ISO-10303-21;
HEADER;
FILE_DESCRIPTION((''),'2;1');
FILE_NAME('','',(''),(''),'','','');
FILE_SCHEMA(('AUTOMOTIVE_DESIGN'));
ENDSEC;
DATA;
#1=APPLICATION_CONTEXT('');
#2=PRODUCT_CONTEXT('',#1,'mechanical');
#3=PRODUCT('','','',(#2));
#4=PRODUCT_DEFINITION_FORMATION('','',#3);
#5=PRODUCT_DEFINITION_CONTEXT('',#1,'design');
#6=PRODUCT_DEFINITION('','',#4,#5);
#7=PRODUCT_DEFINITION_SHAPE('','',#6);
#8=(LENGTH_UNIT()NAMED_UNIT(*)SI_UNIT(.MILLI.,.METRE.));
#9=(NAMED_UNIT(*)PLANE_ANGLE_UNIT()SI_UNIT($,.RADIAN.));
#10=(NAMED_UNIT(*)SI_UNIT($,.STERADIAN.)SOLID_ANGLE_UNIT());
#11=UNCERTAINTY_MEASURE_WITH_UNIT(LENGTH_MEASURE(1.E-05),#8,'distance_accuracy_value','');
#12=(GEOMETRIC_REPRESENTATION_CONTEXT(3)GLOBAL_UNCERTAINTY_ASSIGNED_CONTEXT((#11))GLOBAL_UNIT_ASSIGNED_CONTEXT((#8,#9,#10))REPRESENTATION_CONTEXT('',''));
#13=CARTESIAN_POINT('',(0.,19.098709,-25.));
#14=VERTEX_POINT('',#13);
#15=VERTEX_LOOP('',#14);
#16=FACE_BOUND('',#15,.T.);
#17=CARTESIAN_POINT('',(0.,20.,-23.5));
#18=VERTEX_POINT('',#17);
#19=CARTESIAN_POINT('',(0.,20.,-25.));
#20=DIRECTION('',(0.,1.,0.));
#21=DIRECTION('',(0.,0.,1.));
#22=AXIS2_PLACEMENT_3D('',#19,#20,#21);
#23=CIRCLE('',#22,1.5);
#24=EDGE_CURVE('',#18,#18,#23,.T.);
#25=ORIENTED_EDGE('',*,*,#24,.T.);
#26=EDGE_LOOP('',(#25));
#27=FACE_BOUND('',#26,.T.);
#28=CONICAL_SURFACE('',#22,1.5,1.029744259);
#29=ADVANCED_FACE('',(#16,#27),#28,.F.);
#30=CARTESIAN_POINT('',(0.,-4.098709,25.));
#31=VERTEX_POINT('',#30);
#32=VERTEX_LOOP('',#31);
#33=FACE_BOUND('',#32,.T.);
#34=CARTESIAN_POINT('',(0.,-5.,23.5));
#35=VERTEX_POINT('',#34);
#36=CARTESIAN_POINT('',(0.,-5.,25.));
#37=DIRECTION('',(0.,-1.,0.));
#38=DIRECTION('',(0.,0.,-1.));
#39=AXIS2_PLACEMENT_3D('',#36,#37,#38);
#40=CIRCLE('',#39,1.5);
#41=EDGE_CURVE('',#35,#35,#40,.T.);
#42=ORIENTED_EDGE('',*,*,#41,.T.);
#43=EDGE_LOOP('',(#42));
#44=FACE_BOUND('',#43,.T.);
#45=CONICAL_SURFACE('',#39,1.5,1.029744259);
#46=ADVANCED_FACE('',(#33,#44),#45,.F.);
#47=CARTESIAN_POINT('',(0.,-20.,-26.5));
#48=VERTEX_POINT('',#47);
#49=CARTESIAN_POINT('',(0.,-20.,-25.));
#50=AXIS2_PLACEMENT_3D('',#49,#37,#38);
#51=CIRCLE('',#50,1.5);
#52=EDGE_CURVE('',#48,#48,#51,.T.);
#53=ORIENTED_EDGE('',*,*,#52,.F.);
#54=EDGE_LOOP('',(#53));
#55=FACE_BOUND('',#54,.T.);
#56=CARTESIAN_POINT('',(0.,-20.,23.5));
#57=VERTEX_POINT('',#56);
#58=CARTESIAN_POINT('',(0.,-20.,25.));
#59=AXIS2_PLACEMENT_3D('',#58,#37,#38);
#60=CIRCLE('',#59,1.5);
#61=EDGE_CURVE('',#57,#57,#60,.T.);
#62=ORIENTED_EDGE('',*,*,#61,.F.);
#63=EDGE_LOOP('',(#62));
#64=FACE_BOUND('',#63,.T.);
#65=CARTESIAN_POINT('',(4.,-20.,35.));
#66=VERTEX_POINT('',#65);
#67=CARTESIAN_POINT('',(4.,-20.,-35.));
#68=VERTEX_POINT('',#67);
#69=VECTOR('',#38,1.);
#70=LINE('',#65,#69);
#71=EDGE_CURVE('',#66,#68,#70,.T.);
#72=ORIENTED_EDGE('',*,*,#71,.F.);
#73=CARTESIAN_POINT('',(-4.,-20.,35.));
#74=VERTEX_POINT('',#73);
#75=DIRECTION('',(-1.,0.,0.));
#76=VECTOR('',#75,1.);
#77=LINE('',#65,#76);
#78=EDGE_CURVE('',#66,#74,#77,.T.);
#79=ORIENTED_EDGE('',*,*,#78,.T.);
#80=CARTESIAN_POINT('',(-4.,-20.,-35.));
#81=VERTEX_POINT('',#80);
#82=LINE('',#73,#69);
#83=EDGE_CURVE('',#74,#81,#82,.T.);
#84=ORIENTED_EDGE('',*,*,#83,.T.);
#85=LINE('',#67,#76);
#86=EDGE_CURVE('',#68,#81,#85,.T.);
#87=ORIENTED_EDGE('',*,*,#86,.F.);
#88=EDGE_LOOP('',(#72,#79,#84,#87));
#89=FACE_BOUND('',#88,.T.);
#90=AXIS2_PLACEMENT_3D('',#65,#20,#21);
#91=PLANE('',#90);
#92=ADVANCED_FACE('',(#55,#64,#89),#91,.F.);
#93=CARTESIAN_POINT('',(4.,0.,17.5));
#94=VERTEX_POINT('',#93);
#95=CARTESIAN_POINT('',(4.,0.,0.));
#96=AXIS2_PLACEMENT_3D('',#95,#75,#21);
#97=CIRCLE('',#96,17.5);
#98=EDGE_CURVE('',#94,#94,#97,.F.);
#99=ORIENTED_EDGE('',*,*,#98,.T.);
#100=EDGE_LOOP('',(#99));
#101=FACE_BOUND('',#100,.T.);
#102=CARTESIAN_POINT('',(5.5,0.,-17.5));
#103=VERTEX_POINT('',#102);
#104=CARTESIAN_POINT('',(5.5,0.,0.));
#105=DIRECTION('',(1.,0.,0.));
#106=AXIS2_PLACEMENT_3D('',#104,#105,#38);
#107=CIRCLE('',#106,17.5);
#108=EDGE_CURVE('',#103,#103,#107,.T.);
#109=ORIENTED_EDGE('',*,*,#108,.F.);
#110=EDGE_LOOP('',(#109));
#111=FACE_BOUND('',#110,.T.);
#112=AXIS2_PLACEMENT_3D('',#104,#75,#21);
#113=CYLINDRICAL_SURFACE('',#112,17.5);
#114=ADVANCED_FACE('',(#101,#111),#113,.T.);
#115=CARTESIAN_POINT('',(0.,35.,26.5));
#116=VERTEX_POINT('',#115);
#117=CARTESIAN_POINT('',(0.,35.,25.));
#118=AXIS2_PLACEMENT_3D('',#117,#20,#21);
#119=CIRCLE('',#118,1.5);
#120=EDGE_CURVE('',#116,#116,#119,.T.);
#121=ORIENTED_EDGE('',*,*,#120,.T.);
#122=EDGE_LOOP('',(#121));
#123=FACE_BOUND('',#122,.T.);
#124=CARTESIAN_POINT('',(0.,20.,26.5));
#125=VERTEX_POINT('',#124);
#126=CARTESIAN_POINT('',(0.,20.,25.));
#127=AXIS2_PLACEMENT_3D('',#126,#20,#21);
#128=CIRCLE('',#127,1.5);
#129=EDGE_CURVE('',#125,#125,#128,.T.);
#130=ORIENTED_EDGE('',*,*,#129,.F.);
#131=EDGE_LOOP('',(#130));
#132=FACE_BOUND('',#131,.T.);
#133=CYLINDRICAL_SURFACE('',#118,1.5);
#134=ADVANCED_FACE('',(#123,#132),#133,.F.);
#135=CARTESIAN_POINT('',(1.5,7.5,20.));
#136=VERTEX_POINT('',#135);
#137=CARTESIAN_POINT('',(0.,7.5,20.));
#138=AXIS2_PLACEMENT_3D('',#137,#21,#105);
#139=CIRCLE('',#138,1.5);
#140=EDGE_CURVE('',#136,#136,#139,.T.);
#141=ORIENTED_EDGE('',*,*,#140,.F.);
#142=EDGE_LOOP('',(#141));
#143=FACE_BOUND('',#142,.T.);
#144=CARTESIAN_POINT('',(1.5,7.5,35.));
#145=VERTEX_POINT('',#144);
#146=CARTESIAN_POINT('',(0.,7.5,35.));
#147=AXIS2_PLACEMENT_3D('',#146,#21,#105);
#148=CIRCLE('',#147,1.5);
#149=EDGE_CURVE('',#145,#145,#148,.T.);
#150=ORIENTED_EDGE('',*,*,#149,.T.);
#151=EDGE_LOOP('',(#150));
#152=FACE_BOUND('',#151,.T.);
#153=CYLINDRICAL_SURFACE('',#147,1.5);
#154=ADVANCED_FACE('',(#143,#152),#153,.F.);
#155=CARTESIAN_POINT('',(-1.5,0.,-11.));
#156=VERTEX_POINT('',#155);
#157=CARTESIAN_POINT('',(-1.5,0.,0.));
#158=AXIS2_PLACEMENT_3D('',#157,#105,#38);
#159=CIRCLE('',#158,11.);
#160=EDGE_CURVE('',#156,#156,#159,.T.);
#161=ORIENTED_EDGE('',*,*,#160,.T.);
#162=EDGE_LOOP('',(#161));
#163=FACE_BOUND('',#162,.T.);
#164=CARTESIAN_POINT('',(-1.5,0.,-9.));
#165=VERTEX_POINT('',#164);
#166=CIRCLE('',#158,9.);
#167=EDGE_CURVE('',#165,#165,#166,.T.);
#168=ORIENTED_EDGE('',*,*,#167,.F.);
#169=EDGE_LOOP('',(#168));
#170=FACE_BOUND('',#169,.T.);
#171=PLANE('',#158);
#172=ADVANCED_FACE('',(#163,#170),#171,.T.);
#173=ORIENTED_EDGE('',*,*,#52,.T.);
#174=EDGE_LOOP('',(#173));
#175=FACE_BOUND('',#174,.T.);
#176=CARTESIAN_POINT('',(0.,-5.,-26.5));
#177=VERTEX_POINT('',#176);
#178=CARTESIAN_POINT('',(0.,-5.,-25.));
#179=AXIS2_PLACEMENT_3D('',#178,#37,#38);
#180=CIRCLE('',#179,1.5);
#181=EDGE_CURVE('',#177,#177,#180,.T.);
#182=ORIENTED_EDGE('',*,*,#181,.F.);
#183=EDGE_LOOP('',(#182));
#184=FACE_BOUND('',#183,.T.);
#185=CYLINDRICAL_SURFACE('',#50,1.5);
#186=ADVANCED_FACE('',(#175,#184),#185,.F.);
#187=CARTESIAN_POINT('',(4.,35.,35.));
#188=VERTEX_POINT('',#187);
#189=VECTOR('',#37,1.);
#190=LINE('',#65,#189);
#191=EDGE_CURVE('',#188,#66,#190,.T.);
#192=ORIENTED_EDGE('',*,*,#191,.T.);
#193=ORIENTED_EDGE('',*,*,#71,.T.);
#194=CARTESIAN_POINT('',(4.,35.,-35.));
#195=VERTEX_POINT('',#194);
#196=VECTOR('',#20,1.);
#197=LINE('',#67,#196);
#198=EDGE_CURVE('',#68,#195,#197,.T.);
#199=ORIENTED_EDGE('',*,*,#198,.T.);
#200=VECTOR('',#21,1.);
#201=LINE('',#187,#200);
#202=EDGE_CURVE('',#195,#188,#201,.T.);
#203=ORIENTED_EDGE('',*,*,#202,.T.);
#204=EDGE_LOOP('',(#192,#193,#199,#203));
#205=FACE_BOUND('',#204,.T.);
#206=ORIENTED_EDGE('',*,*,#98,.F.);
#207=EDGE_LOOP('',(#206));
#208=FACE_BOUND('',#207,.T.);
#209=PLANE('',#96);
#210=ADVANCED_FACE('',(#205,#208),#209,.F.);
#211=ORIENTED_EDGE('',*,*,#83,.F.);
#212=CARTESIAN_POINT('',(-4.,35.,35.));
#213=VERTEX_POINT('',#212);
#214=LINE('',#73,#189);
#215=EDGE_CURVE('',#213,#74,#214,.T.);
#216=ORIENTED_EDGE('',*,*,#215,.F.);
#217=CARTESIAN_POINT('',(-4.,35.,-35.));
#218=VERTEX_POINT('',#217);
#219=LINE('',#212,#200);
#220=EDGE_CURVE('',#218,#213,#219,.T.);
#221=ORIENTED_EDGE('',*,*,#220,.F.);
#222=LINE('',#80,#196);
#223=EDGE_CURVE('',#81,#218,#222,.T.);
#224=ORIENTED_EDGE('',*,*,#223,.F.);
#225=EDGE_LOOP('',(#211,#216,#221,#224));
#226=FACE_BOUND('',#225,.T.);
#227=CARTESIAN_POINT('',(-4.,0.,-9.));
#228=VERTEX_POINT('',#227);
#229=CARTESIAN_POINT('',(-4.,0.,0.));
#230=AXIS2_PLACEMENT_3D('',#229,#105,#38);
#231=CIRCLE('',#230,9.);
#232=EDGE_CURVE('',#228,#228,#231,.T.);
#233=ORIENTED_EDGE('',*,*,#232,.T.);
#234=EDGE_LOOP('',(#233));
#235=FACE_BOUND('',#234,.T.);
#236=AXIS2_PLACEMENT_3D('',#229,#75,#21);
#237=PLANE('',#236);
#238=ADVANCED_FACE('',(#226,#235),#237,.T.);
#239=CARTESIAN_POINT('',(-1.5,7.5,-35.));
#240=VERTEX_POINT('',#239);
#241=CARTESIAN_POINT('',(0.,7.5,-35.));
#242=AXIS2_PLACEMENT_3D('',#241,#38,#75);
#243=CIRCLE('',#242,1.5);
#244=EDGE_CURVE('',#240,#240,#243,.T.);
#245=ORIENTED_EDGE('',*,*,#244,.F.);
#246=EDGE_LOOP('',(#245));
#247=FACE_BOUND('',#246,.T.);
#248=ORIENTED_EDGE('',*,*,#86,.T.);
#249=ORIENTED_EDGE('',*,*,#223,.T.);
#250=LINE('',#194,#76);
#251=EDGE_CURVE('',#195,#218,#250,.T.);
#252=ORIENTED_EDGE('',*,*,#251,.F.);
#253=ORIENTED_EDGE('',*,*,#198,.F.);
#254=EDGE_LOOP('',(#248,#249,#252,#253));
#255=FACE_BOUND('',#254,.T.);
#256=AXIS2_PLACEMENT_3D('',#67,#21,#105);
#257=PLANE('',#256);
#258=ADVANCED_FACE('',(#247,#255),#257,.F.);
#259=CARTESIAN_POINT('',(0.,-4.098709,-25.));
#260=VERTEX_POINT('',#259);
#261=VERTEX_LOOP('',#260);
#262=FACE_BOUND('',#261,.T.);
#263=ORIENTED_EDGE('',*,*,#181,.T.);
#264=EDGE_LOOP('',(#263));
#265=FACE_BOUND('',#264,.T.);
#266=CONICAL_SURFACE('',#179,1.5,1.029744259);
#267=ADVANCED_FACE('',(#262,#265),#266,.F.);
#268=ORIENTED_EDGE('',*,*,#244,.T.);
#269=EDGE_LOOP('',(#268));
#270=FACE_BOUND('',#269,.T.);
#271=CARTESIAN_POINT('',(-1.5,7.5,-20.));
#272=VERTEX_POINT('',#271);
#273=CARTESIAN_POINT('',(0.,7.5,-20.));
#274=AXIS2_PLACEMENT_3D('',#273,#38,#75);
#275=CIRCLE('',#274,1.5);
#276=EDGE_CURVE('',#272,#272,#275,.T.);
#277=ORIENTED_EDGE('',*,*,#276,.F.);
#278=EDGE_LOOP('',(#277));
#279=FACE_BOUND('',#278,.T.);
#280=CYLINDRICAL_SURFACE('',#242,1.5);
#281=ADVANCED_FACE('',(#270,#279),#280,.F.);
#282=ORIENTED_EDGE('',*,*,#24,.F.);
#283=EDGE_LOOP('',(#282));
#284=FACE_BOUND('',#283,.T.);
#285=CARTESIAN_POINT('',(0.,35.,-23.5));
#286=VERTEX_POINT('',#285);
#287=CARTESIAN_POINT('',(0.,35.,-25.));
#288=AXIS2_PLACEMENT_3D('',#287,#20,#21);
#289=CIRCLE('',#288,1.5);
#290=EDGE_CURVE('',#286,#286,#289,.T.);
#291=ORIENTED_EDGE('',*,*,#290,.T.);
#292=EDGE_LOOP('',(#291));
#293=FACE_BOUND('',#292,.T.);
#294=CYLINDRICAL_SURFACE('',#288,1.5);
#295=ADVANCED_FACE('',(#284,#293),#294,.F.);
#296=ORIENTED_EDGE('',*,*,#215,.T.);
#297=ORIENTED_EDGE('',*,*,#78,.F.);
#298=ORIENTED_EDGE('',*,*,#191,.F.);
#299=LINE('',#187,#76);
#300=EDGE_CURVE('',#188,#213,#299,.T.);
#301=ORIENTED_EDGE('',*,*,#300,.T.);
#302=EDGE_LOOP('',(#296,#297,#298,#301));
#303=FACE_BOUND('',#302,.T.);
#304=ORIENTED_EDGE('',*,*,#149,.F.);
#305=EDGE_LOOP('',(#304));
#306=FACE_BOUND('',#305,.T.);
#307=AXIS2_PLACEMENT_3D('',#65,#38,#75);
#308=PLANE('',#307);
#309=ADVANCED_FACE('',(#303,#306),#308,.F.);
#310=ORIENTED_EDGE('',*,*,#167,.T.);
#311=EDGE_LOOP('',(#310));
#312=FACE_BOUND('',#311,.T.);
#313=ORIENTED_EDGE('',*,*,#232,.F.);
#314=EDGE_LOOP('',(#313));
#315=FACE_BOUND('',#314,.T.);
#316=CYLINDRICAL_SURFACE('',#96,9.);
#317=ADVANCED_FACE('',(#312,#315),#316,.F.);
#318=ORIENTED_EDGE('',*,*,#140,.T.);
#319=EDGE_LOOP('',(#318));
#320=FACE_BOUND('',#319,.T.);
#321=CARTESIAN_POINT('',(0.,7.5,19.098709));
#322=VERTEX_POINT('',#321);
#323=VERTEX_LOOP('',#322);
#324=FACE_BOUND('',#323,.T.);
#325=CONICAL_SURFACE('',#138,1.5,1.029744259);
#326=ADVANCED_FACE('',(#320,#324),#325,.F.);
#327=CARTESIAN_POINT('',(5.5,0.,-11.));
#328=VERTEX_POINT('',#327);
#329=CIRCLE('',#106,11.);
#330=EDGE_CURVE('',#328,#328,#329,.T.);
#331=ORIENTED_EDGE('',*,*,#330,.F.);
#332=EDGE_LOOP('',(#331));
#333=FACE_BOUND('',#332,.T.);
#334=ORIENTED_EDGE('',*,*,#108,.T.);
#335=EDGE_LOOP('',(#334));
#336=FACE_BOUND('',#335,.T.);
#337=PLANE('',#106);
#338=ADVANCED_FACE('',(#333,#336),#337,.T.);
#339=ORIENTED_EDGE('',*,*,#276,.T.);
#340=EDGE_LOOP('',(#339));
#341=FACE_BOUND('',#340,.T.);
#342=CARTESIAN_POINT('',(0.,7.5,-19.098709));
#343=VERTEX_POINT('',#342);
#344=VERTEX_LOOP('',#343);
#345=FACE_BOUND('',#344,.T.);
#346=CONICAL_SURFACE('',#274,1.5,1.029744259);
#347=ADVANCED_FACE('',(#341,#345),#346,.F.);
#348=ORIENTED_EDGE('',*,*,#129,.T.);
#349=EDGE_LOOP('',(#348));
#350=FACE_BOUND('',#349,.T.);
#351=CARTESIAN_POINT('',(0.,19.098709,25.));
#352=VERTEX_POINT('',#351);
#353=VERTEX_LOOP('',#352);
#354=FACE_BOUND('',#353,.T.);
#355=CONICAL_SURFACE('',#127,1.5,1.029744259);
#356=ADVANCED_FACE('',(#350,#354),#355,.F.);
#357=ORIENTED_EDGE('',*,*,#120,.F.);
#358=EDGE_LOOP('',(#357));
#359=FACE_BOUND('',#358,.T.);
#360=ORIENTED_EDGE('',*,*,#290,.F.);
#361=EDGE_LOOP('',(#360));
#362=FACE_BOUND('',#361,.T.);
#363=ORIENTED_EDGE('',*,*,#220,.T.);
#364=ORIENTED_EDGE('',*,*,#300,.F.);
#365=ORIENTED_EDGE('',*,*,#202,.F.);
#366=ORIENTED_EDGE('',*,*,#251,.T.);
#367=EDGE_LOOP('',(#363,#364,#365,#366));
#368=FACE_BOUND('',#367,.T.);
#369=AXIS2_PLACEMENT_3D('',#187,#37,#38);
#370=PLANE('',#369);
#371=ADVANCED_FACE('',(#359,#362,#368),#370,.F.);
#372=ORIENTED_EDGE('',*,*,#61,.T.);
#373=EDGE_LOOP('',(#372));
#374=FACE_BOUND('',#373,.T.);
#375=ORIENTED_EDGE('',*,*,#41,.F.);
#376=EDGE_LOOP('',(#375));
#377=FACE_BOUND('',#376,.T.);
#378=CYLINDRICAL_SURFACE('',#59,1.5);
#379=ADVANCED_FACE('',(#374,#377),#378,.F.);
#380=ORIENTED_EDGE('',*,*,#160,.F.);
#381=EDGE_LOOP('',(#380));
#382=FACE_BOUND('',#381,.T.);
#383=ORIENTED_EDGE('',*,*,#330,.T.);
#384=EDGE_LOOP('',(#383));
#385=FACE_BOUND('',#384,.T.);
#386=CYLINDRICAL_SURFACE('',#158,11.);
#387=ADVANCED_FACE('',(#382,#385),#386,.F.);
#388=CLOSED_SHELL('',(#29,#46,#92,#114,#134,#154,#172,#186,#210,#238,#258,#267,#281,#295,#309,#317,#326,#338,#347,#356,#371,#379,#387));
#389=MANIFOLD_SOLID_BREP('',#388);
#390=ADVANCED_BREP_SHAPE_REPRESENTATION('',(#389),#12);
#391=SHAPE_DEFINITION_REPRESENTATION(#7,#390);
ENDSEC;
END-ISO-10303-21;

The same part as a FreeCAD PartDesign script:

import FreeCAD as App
import Part
import Sketcher

doc = App.newDocument("Part")
params = doc.addObject("Spreadsheet::Sheet", "Params")
for row, (alias, value) in enumerate([
    ("sketch1_diameter", "18 mm"),
    ("sketch1_width", "55 mm"),
    ("sketch1_height", "70 mm"),
    ("pad1_length", "8 mm"),
    ("sketch2_diameter", "22 mm"),
    ("pocket1_length", "5.5 mm"),
    ("sketch3_diameter", "3 mm"),
    ("hole_diameter", "3 mm"),
    ("hole_depth", "15 mm"),
    ("sketch4_diameter", "3 mm"),
    ("hole2_diameter", "3 mm"),
    ("hole2_depth", "15 mm"),
    ("sketch5_diameter", "3 mm"),
    ("hole3_diameter", "3 mm"),
    ("hole3_depth", "15 mm"),
    ("sketch6_diameter", "3 mm"),
    ("hole4_diameter", "3 mm"),
    ("hole4_depth", "15 mm"),
    ("sketch7_diameter", "35 mm"),
    ("sketch7_diameter2", "22 mm"),
    ("pad2_length", "7 mm"),
], start=1):
    params.set(f"A{row}", alias)
    params.set(f"B{row}", "=" + value)
    params.setAlias(f"B{row}", alias)

body = doc.addObject("PartDesign::Body", "Body")

# Sketch on YZ plane
sketch1 = body.newObject("Sketcher::SketchObject", "Sketch")
sketch1.AttachmentSupport = (doc.getObject("YZ_Plane"), [""])
sketch1.MapMode = "FlatFace"
sketch1.addGeometry([
    Part.LineSegment(App.Vector(35, 35, 0), App.Vector(-20, 35, 0)),  # 0
    Part.LineSegment(App.Vector(-20, 35, 0), App.Vector(-20, -35, 0)),  # 1
    Part.LineSegment(App.Vector(-20, -35, 0), App.Vector(35, -35, 0)),  # 2
    Part.LineSegment(App.Vector(35, -35, 0), App.Vector(35, 35, 0)),  # 3
    Part.Circle(App.Vector(0, 0, 0), App.Vector(0, 0, 1), 9),  # 4
], False)
sketch1.addConstraint([
    Sketcher.Constraint("Coincident", 0, 2, 1, 1),
    Sketcher.Constraint("Coincident", 1, 2, 2, 1),
    Sketcher.Constraint("Coincident", 2, 2, 3, 1),
    Sketcher.Constraint("Coincident", 3, 2, 0, 1),
    Sketcher.Constraint("Horizontal", 0),
    Sketcher.Constraint("Vertical", 1),
    Sketcher.Constraint("Horizontal", 2),
    Sketcher.Constraint("Vertical", 3),
    Sketcher.Constraint("Coincident", 4, 3, -1, 1),
    Sketcher.Constraint("Diameter", 4, 18.0),
    Sketcher.Constraint("DistanceX", 0, 2, 0, 1, 55.0),
    Sketcher.Constraint("DistanceY", 1, 2, 1, 1, 70.0),
    Sketcher.Constraint("DistanceX", 0, 2, -1, 1, 20.0),
    Sketcher.Constraint("DistanceY", -1, 1, 0, 2, 35.0),
])
sketch1.setExpression("Constraints[9]", "Params.sketch1_diameter")
sketch1.setExpression("Constraints[10]", "Params.sketch1_width")
sketch1.setExpression("Constraints[11]", "Params.sketch1_height")
pad1 = body.newObject("PartDesign::Pad", "Pad")
pad1.Profile = sketch1
pad1.setExpression("Length", "Params.pad1_length")
pad1.Midplane = True

# Sketch on YZ plane
sketch2 = body.newObject("Sketcher::SketchObject", "Sketch001")
sketch2.AttachmentSupport = (doc.getObject("YZ_Plane"), [""])
sketch2.MapMode = "FlatFace"
sketch2.AttachmentOffset = App.Placement(App.Vector(0, 0, 4), App.Rotation())
sketch2.addGeometry(Part.Circle(App.Vector(0, 0, 0), App.Vector(0, 0, 1), 11), False)
sketch2.addConstraint([
    Sketcher.Constraint("Coincident", 0, 3, -1, 1),
    Sketcher.Constraint("Diameter", 0, 22.0),
])
sketch2.setExpression("Constraints[1]", "Params.sketch2_diameter")
pocket1 = body.newObject("PartDesign::Pocket", "Pocket")
pocket1.Profile = sketch2
pocket1.setExpression("Length", "Params.pocket1_length")

# Sketch on XZ plane
sketch3 = body.newObject("Sketcher::SketchObject", "Sketch002")
sketch3.AttachmentSupport = (doc.getObject("XZ_Plane"), [""])
sketch3.MapMode = "FlatFace"
sketch3.AttachmentOffset = App.Placement(App.Vector(0, 0, 20), App.Rotation())
sketch3.addGeometry([
    Part.Circle(App.Vector(0, 25, 0), App.Vector(0, 0, 1), 1.5),
    Part.Circle(App.Vector(0, -25, 0), App.Vector(0, 0, 1), 1.5),
], False)
sketch3.addConstraint([
    Sketcher.Constraint("Equal", 0, 1),
    Sketcher.Constraint("Symmetric", 0, 3, 1, 3, -1, 1),
    Sketcher.Constraint("PointOnObject", 0, 3, -2),
    Sketcher.Constraint("Diameter", 0, 3.0),
    Sketcher.Constraint("DistanceY", -1, 1, 0, 3, 25.0),
])
sketch3.setExpression("Constraints[3]", "Params.sketch3_diameter")
doc.recompute()
hole = body.newObject("PartDesign::Hole", "Hole")
hole.Profile = sketch3
hole.ThreadType = "None"
hole.setExpression("Diameter", "Params.hole_diameter")
hole.DepthType = "Dimension"
hole.setExpression("Depth", "Params.hole_depth")
hole.DrillPoint = "Angled"
hole.DrillPointAngle = 118

# Sketch on XZ plane
sketch4 = body.newObject("Sketcher::SketchObject", "Sketch003")
sketch4.AttachmentSupport = (doc.getObject("XZ_Plane"), [""])
sketch4.MapMode = "FlatFace"
sketch4.AttachmentOffset = App.Placement(App.Vector(0, 0, -35), App.Rotation())
sketch4.addGeometry([
    Part.Circle(App.Vector(0, 25, 0), App.Vector(0, 0, 1), 1.5),
    Part.Circle(App.Vector(0, -25, 0), App.Vector(0, 0, 1), 1.5),
], False)
sketch4.addConstraint([
    Sketcher.Constraint("Equal", 0, 1),
    Sketcher.Constraint("Symmetric", 0, 3, 1, 3, -1, 1),
    Sketcher.Constraint("PointOnObject", 0, 3, -2),
    Sketcher.Constraint("Diameter", 0, 3.0),
    Sketcher.Constraint("DistanceY", -1, 1, 0, 3, 25.0),
])
sketch4.setExpression("Constraints[3]", "Params.sketch4_diameter")
doc.recompute()
hole2 = body.newObject("PartDesign::Hole", "Hole001")
hole2.Profile = sketch4
hole2.ThreadType = "None"
hole2.setExpression("Diameter", "Params.hole2_diameter")
hole2.DepthType = "Dimension"
hole2.setExpression("Depth", "Params.hole2_depth")
hole2.DrillPoint = "Angled"
hole2.DrillPointAngle = 118
hole2.Reversed = True

# Sketch on XY plane
sketch5 = body.newObject("Sketcher::SketchObject", "Sketch004")
sketch5.AttachmentSupport = (doc.getObject("XY_Plane"), [""])
sketch5.MapMode = "FlatFace"
sketch5.AttachmentOffset = App.Placement(App.Vector(0, 0, 35), App.Rotation())
sketch5.addGeometry(Part.Circle(App.Vector(0, 7.5, 0), App.Vector(0, 0, 1), 1.5), False)
sketch5.addConstraint([
    Sketcher.Constraint("PointOnObject", 0, 3, -2),
    Sketcher.Constraint("Diameter", 0, 3.0),
    Sketcher.Constraint("DistanceY", -1, 1, 0, 3, 7.5),
])
sketch5.setExpression("Constraints[1]", "Params.sketch5_diameter")
doc.recompute()
hole3 = body.newObject("PartDesign::Hole", "Hole002")
hole3.Profile = sketch5
hole3.ThreadType = "None"
hole3.setExpression("Diameter", "Params.hole3_diameter")
hole3.DepthType = "Dimension"
hole3.setExpression("Depth", "Params.hole3_depth")
hole3.DrillPoint = "Angled"
hole3.DrillPointAngle = 118

# Sketch on XY plane
sketch6 = body.newObject("Sketcher::SketchObject", "Sketch005")
sketch6.AttachmentSupport = (doc.getObject("XY_Plane"), [""])
sketch6.MapMode = "FlatFace"
sketch6.AttachmentOffset = App.Placement(App.Vector(0, 0, -35), App.Rotation())
sketch6.addGeometry(Part.Circle(App.Vector(0, 7.5, 0), App.Vector(0, 0, 1), 1.5), False)
sketch6.addConstraint([
    Sketcher.Constraint("PointOnObject", 0, 3, -2),
    Sketcher.Constraint("Diameter", 0, 3.0),
    Sketcher.Constraint("DistanceY", -1, 1, 0, 3, 7.5),
])
sketch6.setExpression("Constraints[1]", "Params.sketch6_diameter")
doc.recompute()
hole4 = body.newObject("PartDesign::Hole", "Hole003")
hole4.Profile = sketch6
hole4.ThreadType = "None"
hole4.setExpression("Diameter", "Params.hole4_diameter")
hole4.DepthType = "Dimension"
hole4.setExpression("Depth", "Params.hole4_depth")
hole4.DrillPoint = "Angled"
hole4.DrillPointAngle = 118
hole4.Reversed = True

# Sketch on YZ plane
sketch7 = body.newObject("Sketcher::SketchObject", "Sketch006")
sketch7.AttachmentSupport = (doc.getObject("YZ_Plane"), [""])
sketch7.MapMode = "FlatFace"
sketch7.AttachmentOffset = App.Placement(App.Vector(0, 0, 5.5), App.Rotation())
sketch7.addGeometry([
    Part.Circle(App.Vector(0, 0, 0), App.Vector(0, 0, 1), 18),
    Part.Circle(App.Vector(0, 0, 0), App.Vector(0, 0, 1), 11),
], False)
sketch7.addConstraint([
    Sketcher.Constraint("Coincident", 0, 3, -1, 1),
    Sketcher.Constraint("Coincident", 1, 3, -1, 1),
    Sketcher.Constraint("Diameter", 0, 35.0),
    Sketcher.Constraint("Diameter", 1, 22.0),
])
sketch7.setExpression("Constraints[2]", "Params.sketch7_diameter")
sketch7.setExpression("Constraints[3]", "Params.sketch7_diameter2")
pad2 = body.newObject("PartDesign::Pad", "Pad001")
pad2.Profile = sketch7
pad2.setExpression("Length", "Params.pad2_length")
pad2.Reversed = True

doc.recompute()
